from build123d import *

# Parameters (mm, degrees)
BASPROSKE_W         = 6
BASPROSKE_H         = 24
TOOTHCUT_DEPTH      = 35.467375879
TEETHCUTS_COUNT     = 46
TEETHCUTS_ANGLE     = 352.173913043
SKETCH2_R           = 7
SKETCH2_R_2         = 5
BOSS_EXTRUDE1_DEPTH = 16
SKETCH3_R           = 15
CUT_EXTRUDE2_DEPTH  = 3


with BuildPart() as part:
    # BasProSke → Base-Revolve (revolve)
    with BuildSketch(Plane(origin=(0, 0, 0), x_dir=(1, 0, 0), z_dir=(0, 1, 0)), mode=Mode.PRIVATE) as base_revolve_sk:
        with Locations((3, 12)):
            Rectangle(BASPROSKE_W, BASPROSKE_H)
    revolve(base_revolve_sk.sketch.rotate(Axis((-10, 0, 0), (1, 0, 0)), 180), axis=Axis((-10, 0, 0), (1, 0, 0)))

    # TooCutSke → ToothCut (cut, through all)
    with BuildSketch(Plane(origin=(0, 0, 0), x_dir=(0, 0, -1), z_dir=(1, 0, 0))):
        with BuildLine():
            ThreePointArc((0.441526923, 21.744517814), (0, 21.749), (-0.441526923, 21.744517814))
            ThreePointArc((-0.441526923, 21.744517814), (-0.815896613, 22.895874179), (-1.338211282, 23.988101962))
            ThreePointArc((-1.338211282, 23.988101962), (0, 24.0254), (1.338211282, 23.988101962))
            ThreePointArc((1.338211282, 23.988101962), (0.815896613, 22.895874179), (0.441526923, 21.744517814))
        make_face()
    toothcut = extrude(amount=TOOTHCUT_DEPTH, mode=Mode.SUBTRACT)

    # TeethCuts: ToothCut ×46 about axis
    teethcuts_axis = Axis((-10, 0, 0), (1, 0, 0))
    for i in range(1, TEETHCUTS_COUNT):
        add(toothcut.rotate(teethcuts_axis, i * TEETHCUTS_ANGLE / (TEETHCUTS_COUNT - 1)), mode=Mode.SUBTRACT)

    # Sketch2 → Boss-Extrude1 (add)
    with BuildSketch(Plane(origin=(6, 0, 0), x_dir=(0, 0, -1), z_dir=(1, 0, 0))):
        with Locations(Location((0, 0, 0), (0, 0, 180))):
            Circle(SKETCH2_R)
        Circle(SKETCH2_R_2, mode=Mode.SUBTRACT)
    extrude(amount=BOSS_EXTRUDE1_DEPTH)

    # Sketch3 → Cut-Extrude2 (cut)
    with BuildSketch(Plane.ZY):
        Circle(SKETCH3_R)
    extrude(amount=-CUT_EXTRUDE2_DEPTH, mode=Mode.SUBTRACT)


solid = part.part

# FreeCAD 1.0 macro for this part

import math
import FreeCAD as App
import Part
import Sketcher

V = App.Vector


def add_polygon(sketch, points):
    """Adds a closed chain of lines whose ends are joined by coincident constraints."""
    first, n = sketch.GeometryCount, len(points)
    for a, b in zip(points, points[1:] + points[:1]):
        sketch.addGeometry(Part.LineSegment(App.Vector(*a, 0), App.Vector(*b, 0)), False)
    for i in range(n):
        sketch.addConstraint(Sketcher.Constraint("Coincident", first + i, 2, first + (i + 1) % n, 1))

doc = App.newDocument("Part")
body = doc.addObject("PartDesign::Body", "Body")

sketch1 = body.newObject("Sketcher::SketchObject", "Sketch")
sketch1.AttachmentSupport = (doc.getObject("XZ_Plane"), [""])
sketch1.MapMode = "FlatFace"
add_polygon(sketch1, [(0, -24), (0, 0), (6, 0), (6, -24)])
sketch1.addConstraint(Sketcher.Constraint("Vertical", 0))
sketch1.addConstraint(Sketcher.Constraint("Horizontal", 1))
sketch1.addConstraint(Sketcher.Constraint("Vertical", 2))
sketch1.addConstraint(Sketcher.Constraint("Horizontal", 3))
sketch1.addConstraint(Sketcher.Constraint("Coincident", 0, 2, -1, 1))
sketch1.addConstraint(Sketcher.Constraint("DistanceX", 1, 1, 1, 2, 6.0))
sketch1.addConstraint(Sketcher.Constraint("DistanceY", 0, 1, 0, 2, 24.0))
revolution = body.newObject("PartDesign::Revolution", "Revolution")
revolution.Profile = sketch1
revolution.ReferenceAxis = (sketch1, ["H_Axis"])
revolution.Angle = 360

sketch2 = body.newObject("Sketcher::SketchObject", "Sketch001")
sketch2.AttachmentSupport = (doc.getObject("YZ_Plane"), [""])
sketch2.MapMode = "FlatFace"
sketch2.addGeometry(Part.ArcOfCircle(Part.Circle(V(0, 0, 0), V(0, 0, 1), 21.7), math.radians(-1.16), math.radians(1.16)), False)
sketch2.addGeometry(Part.ArcOfCircle(Part.Circle(V(19.5, -9.4, 0), V(0, 0, 1), 9.2), math.radians(60.67), math.radians(75.76)), False)
sketch2.addGeometry(Part.ArcOfCircle(Part.Circle(V(0, 0, 0), V(0, 0, 1), 24), math.radians(-3.19), math.radians(3.19)), False)
sketch2.addGeometry(Part.ArcOfCircle(Part.Circle(V(19.5, 9.4, 0), V(0, 0, 1), 9.2), math.radians(-75.76), math.radians(-60.67)), False)
sketch2.addConstraint(Sketcher.Constraint("Coincident", 0, 1, 1, 2))
sketch2.addConstraint(Sketcher.Constraint("Coincident", 1, 1, 2, 1))
sketch2.addConstraint(Sketcher.Constraint("Coincident", 2, 2, 3, 2))
sketch2.addConstraint(Sketcher.Constraint("Coincident", 3, 1, 0, 2))
sketch2.addConstraint(Sketcher.Constraint("Coincident", 0, 3, -1, 1))
sketch2.addConstraint(Sketcher.Constraint("Coincident", 2, 3, -1, 1))
sketch2.addConstraint(Sketcher.Constraint("Equal", 1, 3))
sketch2.addConstraint(Sketcher.Constraint("Symmetric", 1, 3, 3, 3, -1))
sketch2.addConstraint(Sketcher.Constraint("Radius", 1, 9.2))
sketch2.addConstraint(Sketcher.Constraint("Radius", 0, 21.748999))
sketch2.addConstraint(Sketcher.Constraint("Radius", 2, 24.0254))
sketch2.addConstraint(Sketcher.Constraint("DistanceX", -1, 1, 1, 1, 23.988102))
sketch2.addConstraint(Sketcher.Constraint("DistanceX", -1, 1, 1, 3, 19.48154))
pocket1 = body.newObject("PartDesign::Pocket", "Pocket")
pocket1.Profile = sketch2
pocket1.Type = "ThroughAll"
pocket1.Reversed = True
doc.recompute()

polarpattern = body.newObject("PartDesign::PolarPattern", "PolarPattern")
polarpattern.Originals = [pocket1]
polarpattern.Axis = (doc.getObject("X_Axis"), [""])
polarpattern.Angle = 360
polarpattern.Occurrences = 46
body.Tip = polarpattern

sketch3 = body.newObject("Sketcher::SketchObject", "Sketch002")
sketch3.AttachmentSupport = (doc.getObject("YZ_Plane"), [""])
sketch3.MapMode = "FlatFace"
sketch3.AttachmentOffset = App.Placement(V(0, 0, 6), App.Rotation())
sketch3.addGeometry(Part.Circle(V(0, 0, 0), V(0, 0, 1), 7), False)
sketch3.addGeometry(Part.Circle(V(0, 0, 0), V(0, 0, 1), 5), False)
sketch3.addConstraint(Sketcher.Constraint("Coincident", 0, 3, -1, 1))
sketch3.addConstraint(Sketcher.Constraint("Coincident", 1, 3, -1, 1))
sketch3.addConstraint(Sketcher.Constraint("Diameter", 0, 14.0))
sketch3.addConstraint(Sketcher.Constraint("Diameter", 1, 10.0))
pad1 = body.newObject("PartDesign::Pad", "Pad")
pad1.Profile = sketch3
pad1.Length = 16

sketch4 = body.newObject("Sketcher::SketchObject", "Sketch003")
sketch4.AttachmentSupport = (doc.getObject("YZ_Plane"), [""])
sketch4.MapMode = "FlatFace"
sketch4.addGeometry(Part.Circle(V(0, 0, 0), V(0, 0, 1), 15), False)
sketch4.addConstraint(Sketcher.Constraint("Coincident", 0, 3, -1, 1))
sketch4.addConstraint(Sketcher.Constraint("Diameter", 0, 30.0))
pocket2 = body.newObject("PartDesign::Pocket", "Pocket001")
pocket2.Profile = sketch4
pocket2.Length = 3
pocket2.Reversed = True

doc.recompute()
